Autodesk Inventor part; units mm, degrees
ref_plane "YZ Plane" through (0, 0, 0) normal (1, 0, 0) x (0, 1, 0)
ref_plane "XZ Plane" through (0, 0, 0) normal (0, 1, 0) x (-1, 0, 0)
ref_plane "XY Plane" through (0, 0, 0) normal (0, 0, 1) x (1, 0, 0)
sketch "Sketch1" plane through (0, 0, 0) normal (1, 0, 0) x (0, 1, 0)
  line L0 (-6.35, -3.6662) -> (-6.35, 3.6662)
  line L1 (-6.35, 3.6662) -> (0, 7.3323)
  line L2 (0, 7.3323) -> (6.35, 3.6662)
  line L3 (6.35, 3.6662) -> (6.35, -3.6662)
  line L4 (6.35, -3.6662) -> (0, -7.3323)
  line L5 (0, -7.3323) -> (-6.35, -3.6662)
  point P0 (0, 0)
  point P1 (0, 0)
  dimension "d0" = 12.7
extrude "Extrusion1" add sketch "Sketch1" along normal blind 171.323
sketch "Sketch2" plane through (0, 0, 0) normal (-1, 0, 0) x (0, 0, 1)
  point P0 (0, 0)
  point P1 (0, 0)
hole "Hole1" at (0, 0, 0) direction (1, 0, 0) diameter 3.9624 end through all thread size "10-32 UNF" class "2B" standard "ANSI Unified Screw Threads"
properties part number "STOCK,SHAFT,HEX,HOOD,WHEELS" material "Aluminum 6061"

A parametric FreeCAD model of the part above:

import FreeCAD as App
import Part
import Sketcher
Q = App.Units.Quantity

doc = App.newDocument("Part")
body = doc.addObject("PartDesign::Body", "Body")

# Sketch on YZ plane
sketch1 = doc.addObject("Sketcher::SketchObject", "Sketch")
body.addObject(sketch1)
sketch1.AttachmentSupport = (doc.YZ_Plane, [""])
sketch1.MapMode = "FlatFace"
sketch1.addGeometry([
    Part.LineSegment(App.Vector(-6, 4, 0), App.Vector(-6, -4, 0)),  # 0
    Part.LineSegment(App.Vector(-6, -4, 0), App.Vector(0, -7, 0)),  # 1
    Part.LineSegment(App.Vector(0, -7, 0), App.Vector(6, -4, 0)),  # 2
    Part.LineSegment(App.Vector(6, -4, 0), App.Vector(6, 4, 0)),  # 3
    Part.LineSegment(App.Vector(6, 4, 0), App.Vector(0, 7, 0)),  # 4
    Part.LineSegment(App.Vector(0, 7, 0), App.Vector(-6, 4, 0)),  # 5
], False)
sketch1.addConstraint([
    Sketcher.Constraint("Coincident", 0, 2, 1, 1),
    Sketcher.Constraint("Coincident", 1, 2, 2, 1),
    Sketcher.Constraint("Coincident", 2, 2, 3, 1),
    Sketcher.Constraint("Coincident", 3, 2, 4, 1),
    Sketcher.Constraint("Coincident", 4, 2, 5, 1),
    Sketcher.Constraint("Coincident", 5, 2, 0, 1),
    Sketcher.Constraint("Vertical", 0),
    Sketcher.Constraint("Vertical", 3),
    Sketcher.Constraint("Symmetric", 0, 2, 3, 2, -1, 1),
    Sketcher.Constraint("Symmetric", 1, 2, 4, 2, -1, 1),
    Sketcher.Constraint("PointOnObject", 1, 2, -2),
    Sketcher.Constraint("Parallel", 2, 5),
    Sketcher.Constraint("Horizontal", 0, 2, 2, 2),
    Sketcher.Constraint("DistanceX", 0, 2, 2, 2, Q("0.5 in")),
    Sketcher.Constraint("Angle", 1, Q("-29.9995 deg")),
    Sketcher.Constraint("DistanceY", 1, 2, 3, 2, Q("0.433 in")),
])
pad1 = doc.addObject("PartDesign::Pad", "Pad")
body.addObject(pad1)
pad1.Profile = sketch1
pad1.Length = Q("6.745 in")

# Sketch on YZ plane
sketch2 = doc.addObject("Sketcher::SketchObject", "Sketch001")
body.addObject(sketch2)
sketch2.AttachmentSupport = (doc.YZ_Plane, [""])
sketch2.MapMode = "FlatFace"
sketch2.addGeometry(Part.Circle(App.Vector(0, 0, 0), App.Vector(0, 0, 1), 2), False)
sketch2.addConstraint([
    Sketcher.Constraint("Coincident", 0, 3, -1, 1),
    Sketcher.Constraint("Diameter", 0, Q("0.156 in")),
])
doc.recompute()
hole = doc.addObject("PartDesign::Hole", "Hole")
body.addObject(hole)
hole.Profile = sketch2
hole.ThreadType = "None"
hole.Diameter = Q("0.156 in")
hole.DepthType = "ThroughAll"
hole.Reversed = True

doc.recompute()
